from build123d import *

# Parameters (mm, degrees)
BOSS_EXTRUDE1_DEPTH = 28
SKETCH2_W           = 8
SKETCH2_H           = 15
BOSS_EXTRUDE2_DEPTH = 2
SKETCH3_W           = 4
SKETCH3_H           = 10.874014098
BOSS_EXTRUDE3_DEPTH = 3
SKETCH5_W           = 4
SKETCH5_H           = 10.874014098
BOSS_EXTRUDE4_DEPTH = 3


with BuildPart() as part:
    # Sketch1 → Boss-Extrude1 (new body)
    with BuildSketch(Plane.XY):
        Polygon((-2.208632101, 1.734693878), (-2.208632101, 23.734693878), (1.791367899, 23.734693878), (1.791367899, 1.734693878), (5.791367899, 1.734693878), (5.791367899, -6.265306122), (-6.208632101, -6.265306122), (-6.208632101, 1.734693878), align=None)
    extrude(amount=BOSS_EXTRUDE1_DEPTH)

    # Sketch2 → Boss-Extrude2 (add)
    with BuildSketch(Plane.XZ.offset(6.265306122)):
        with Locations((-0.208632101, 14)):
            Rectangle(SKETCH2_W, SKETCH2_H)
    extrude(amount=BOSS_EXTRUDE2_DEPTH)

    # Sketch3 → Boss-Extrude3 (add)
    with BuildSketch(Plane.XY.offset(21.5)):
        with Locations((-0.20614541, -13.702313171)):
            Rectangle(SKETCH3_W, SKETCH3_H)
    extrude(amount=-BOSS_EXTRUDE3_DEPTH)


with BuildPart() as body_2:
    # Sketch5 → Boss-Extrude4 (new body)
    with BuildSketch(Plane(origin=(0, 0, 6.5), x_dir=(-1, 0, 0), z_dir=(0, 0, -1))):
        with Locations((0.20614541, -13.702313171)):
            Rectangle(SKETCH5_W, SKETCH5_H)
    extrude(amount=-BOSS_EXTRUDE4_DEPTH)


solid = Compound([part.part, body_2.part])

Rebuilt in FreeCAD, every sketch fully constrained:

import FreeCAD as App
import Part
import Sketcher
Q = App.Units.Quantity

doc = App.newDocument("Part")
body = doc.addObject("PartDesign::Body", "Body")

sketch1 = body.newObject("Sketcher::SketchObject", "Sketch")
sketch1.AttachmentSupport = (doc.getObject("XY_Plane"), [""])
sketch1.MapMode = "FlatFace"
sketch1.addGeometry([
    Part.LineSegment(App.Vector(-2.208632, 23.734694, 0), App.Vector(-2.208632, 1.734694, 0)),
    Part.LineSegment(App.Vector(-2.208632, 1.734694, 0), App.Vector(-6.208632, 1.734694, 0)),
    Part.LineSegment(App.Vector(-6.208632, 1.734694, 0), App.Vector(-6.208632, -6.265306, 0)),
    Part.LineSegment(App.Vector(-6.208632, -6.265306, 0), App.Vector(5.791368, -6.265306, 0)),
    Part.LineSegment(App.Vector(5.791368, -6.265306, 0), App.Vector(5.791368, 1.734694, 0)),
    Part.LineSegment(App.Vector(5.791368, 1.734694, 0), App.Vector(1.791368, 1.734694, 0)),
    Part.LineSegment(App.Vector(1.791368, 1.734694, 0), App.Vector(1.791368, 23.734694, 0)),
    Part.LineSegment(App.Vector(1.791368, 23.734694, 0), App.Vector(-2.208632, 23.734694, 0)),
], False)
sketch1.addConstraint([
    Sketcher.Constraint("Coincident", 0, 2, 1, 1),
    Sketcher.Constraint("Coincident", 1, 2, 2, 1),
    Sketcher.Constraint("Coincident", 2, 2, 3, 1),
    Sketcher.Constraint("Coincident", 3, 2, 4, 1),
    Sketcher.Constraint("Coincident", 4, 2, 5, 1),
    Sketcher.Constraint("Coincident", 5, 2, 6, 1),
    Sketcher.Constraint("Coincident", 6, 2, 7, 1),
    Sketcher.Constraint("Coincident", 7, 2, 0, 1),
    Sketcher.Constraint("Vertical", 0),
    Sketcher.Constraint("Horizontal", 1),
    Sketcher.Constraint("Vertical", 2),
    Sketcher.Constraint("Horizontal", 3),
    Sketcher.Constraint("Vertical", 4),
    Sketcher.Constraint("Horizontal", 5),
    Sketcher.Constraint("Vertical", 6),
    Sketcher.Constraint("Horizontal", 7),
    Sketcher.Constraint("Horizontal", 1, 2, 4, 2),
    Sketcher.Constraint("Equal", 1, 5),
    Sketcher.Constraint("Equal", 5, 7),
    Sketcher.Constraint("DistanceX", 1, 2, 1, 1, Q("4 mm")),
    Sketcher.Constraint("DistanceY", 0, 2, 0, 1, Q("22 mm")),
    Sketcher.Constraint("DistanceY", 2, 2, 2, 1, Q("8 mm")),
    Sketcher.Constraint("DistanceX", 0, 2, -1, 1, Q("2.208632 mm")),
    Sketcher.Constraint("DistanceY", -1, 1, 0, 2, Q("1.734694 mm")),
])
pad1 = body.newObject("PartDesign::Pad", "Pad")
pad1.Profile = sketch1
pad1.Length = 28

sketch2 = body.newObject("Sketcher::SketchObject", "Sketch001")
sketch2.AttachmentSupport = (doc.getObject("XZ_Plane"), [""])
sketch2.MapMode = "FlatFace"
sketch2.AttachmentOffset = App.Placement(App.Vector(0, 0, 6.265306), App.Rotation())
sketch2.addGeometry([
    Part.LineSegment(App.Vector(-4.208632, 21.5, 0), App.Vector(-4.208632, 6.5, 0)),
    Part.LineSegment(App.Vector(-4.208632, 6.5, 0), App.Vector(3.791368, 6.5, 0)),
    Part.LineSegment(App.Vector(3.791368, 6.5, 0), App.Vector(3.791368, 21.5, 0)),
    Part.LineSegment(App.Vector(3.791368, 21.5, 0), App.Vector(-4.208632, 21.5, 0)),
], False)
sketch2.addConstraint([
    Sketcher.Constraint("Coincident", 0, 2, 1, 1),
    Sketcher.Constraint("Coincident", 1, 2, 2, 1),
    Sketcher.Constraint("Coincident", 2, 2, 3, 1),
    Sketcher.Constraint("Coincident", 3, 2, 0, 1),
    Sketcher.Constraint("Vertical", 0),
    Sketcher.Constraint("Horizontal", 1),
    Sketcher.Constraint("Vertical", 2),
    Sketcher.Constraint("Horizontal", 3),
    Sketcher.Constraint("DistanceX", 1, 1, 1, 2, Q("8 mm")),
    Sketcher.Constraint("DistanceY", 0, 2, 0, 1, Q("15 mm")),
    Sketcher.Constraint("DistanceY", -1, 1, 0, 2, Q("6.5 mm")),
    Sketcher.Constraint("DistanceX", 0, 2, -1, 1, Q("4.208632 mm")),
])
pad2 = body.newObject("PartDesign::Pad", "Pad001")
pad2.Profile = sketch2
pad2.Length = 2

sketch3 = body.newObject("Sketcher::SketchObject", "Sketch002")
sketch3.AttachmentSupport = (doc.getObject("XY_Plane"), [""])
sketch3.MapMode = "FlatFace"
sketch3.AttachmentOffset = App.Placement(App.Vector(0, 0, 21.5), App.Rotation())
sketch3.addGeometry([
    Part.LineSegment(App.Vector(-2.206145, -8.265306, 0), App.Vector(-2.206145, -19.13932, 0)),
    Part.LineSegment(App.Vector(-2.206145, -19.13932, 0), App.Vector(1.793855, -19.13932, 0)),
    Part.LineSegment(App.Vector(1.793855, -19.13932, 0), App.Vector(1.793855, -8.265306, 0)),
    Part.LineSegment(App.Vector(1.793855, -8.265306, 0), App.Vector(-2.206145, -8.265306, 0)),
], False)
sketch3.addConstraint([
    Sketcher.Constraint("Coincident", 0, 2, 1, 1),
    Sketcher.Constraint("Coincident", 1, 2, 2, 1),
    Sketcher.Constraint("Coincident", 2, 2, 3, 1),
    Sketcher.Constraint("Coincident", 3, 2, 0, 1),
    Sketcher.Constraint("Vertical", 0),
    Sketcher.Constraint("Horizontal", 1),
    Sketcher.Constraint("Vertical", 2),
    Sketcher.Constraint("Horizontal", 3),
    Sketcher.Constraint("DistanceX", 1, 1, 1, 2, Q("4 mm")),
    Sketcher.Constraint("DistanceY", 0, 2, 0, 1, Q("10.874014 mm")),
    Sketcher.Constraint("DistanceY", 0, 2, -1, 1, Q("19.13932 mm")),
    Sketcher.Constraint("DistanceX", 0, 2, -1, 1, Q("2.206145 mm")),
])
pad3 = body.newObject("PartDesign::Pad", "Pad002")
pad3.Profile = sketch3
pad3.Length = 3
pad3.Reversed = True
body2 = doc.addObject("PartDesign::Body", "Body001")

sketch4 = body2.newObject("Sketcher::SketchObject", "Sketch003")
sketch4.AttachmentSupport = (doc.getObject("XY_Plane001"), [""])
sketch4.MapMode = "FlatFace"
sketch4.AttachmentOffset = App.Placement(App.Vector(0, 0, 6.5), App.Rotation())
sketch4.addGeometry([
    Part.LineSegment(App.Vector(1.793855, -8.265306, 0), App.Vector(1.793855, -19.13932, 0)),
    Part.LineSegment(App.Vector(1.793855, -19.13932, 0), App.Vector(-2.206145, -19.13932, 0)),
    Part.LineSegment(App.Vector(-2.206145, -19.13932, 0), App.Vector(-2.206145, -8.265306, 0)),
    Part.LineSegment(App.Vector(-2.206145, -8.265306, 0), App.Vector(1.793855, -8.265306, 0)),
], False)
sketch4.addConstraint([
    Sketcher.Constraint("Coincident", 0, 2, 1, 1),
    Sketcher.Constraint("Coincident", 1, 2, 2, 1),
    Sketcher.Constraint("Coincident", 2, 2, 3, 1),
    Sketcher.Constraint("Coincident", 3, 2, 0, 1),
    Sketcher.Constraint("Vertical", 0),
    Sketcher.Constraint("Horizontal", 1),
    Sketcher.Constraint("Vertical", 2),
    Sketcher.Constraint("Horizontal", 3),
    Sketcher.Constraint("DistanceX", 1, 2, 1, 1, Q("4 mm")),
    Sketcher.Constraint("DistanceY", 0, 2, 0, 1, Q("10.874014 mm")),
    Sketcher.Constraint("DistanceY", 0, 2, -1, 1, Q("19.13932 mm")),
    Sketcher.Constraint("DistanceX", -1, 1, 0, 2, Q("1.793855 mm")),
])
pad4 = body2.newObject("PartDesign::Pad", "Pad003")
pad4.Profile = sketch4
pad4.Length = 3

doc.recompute()
